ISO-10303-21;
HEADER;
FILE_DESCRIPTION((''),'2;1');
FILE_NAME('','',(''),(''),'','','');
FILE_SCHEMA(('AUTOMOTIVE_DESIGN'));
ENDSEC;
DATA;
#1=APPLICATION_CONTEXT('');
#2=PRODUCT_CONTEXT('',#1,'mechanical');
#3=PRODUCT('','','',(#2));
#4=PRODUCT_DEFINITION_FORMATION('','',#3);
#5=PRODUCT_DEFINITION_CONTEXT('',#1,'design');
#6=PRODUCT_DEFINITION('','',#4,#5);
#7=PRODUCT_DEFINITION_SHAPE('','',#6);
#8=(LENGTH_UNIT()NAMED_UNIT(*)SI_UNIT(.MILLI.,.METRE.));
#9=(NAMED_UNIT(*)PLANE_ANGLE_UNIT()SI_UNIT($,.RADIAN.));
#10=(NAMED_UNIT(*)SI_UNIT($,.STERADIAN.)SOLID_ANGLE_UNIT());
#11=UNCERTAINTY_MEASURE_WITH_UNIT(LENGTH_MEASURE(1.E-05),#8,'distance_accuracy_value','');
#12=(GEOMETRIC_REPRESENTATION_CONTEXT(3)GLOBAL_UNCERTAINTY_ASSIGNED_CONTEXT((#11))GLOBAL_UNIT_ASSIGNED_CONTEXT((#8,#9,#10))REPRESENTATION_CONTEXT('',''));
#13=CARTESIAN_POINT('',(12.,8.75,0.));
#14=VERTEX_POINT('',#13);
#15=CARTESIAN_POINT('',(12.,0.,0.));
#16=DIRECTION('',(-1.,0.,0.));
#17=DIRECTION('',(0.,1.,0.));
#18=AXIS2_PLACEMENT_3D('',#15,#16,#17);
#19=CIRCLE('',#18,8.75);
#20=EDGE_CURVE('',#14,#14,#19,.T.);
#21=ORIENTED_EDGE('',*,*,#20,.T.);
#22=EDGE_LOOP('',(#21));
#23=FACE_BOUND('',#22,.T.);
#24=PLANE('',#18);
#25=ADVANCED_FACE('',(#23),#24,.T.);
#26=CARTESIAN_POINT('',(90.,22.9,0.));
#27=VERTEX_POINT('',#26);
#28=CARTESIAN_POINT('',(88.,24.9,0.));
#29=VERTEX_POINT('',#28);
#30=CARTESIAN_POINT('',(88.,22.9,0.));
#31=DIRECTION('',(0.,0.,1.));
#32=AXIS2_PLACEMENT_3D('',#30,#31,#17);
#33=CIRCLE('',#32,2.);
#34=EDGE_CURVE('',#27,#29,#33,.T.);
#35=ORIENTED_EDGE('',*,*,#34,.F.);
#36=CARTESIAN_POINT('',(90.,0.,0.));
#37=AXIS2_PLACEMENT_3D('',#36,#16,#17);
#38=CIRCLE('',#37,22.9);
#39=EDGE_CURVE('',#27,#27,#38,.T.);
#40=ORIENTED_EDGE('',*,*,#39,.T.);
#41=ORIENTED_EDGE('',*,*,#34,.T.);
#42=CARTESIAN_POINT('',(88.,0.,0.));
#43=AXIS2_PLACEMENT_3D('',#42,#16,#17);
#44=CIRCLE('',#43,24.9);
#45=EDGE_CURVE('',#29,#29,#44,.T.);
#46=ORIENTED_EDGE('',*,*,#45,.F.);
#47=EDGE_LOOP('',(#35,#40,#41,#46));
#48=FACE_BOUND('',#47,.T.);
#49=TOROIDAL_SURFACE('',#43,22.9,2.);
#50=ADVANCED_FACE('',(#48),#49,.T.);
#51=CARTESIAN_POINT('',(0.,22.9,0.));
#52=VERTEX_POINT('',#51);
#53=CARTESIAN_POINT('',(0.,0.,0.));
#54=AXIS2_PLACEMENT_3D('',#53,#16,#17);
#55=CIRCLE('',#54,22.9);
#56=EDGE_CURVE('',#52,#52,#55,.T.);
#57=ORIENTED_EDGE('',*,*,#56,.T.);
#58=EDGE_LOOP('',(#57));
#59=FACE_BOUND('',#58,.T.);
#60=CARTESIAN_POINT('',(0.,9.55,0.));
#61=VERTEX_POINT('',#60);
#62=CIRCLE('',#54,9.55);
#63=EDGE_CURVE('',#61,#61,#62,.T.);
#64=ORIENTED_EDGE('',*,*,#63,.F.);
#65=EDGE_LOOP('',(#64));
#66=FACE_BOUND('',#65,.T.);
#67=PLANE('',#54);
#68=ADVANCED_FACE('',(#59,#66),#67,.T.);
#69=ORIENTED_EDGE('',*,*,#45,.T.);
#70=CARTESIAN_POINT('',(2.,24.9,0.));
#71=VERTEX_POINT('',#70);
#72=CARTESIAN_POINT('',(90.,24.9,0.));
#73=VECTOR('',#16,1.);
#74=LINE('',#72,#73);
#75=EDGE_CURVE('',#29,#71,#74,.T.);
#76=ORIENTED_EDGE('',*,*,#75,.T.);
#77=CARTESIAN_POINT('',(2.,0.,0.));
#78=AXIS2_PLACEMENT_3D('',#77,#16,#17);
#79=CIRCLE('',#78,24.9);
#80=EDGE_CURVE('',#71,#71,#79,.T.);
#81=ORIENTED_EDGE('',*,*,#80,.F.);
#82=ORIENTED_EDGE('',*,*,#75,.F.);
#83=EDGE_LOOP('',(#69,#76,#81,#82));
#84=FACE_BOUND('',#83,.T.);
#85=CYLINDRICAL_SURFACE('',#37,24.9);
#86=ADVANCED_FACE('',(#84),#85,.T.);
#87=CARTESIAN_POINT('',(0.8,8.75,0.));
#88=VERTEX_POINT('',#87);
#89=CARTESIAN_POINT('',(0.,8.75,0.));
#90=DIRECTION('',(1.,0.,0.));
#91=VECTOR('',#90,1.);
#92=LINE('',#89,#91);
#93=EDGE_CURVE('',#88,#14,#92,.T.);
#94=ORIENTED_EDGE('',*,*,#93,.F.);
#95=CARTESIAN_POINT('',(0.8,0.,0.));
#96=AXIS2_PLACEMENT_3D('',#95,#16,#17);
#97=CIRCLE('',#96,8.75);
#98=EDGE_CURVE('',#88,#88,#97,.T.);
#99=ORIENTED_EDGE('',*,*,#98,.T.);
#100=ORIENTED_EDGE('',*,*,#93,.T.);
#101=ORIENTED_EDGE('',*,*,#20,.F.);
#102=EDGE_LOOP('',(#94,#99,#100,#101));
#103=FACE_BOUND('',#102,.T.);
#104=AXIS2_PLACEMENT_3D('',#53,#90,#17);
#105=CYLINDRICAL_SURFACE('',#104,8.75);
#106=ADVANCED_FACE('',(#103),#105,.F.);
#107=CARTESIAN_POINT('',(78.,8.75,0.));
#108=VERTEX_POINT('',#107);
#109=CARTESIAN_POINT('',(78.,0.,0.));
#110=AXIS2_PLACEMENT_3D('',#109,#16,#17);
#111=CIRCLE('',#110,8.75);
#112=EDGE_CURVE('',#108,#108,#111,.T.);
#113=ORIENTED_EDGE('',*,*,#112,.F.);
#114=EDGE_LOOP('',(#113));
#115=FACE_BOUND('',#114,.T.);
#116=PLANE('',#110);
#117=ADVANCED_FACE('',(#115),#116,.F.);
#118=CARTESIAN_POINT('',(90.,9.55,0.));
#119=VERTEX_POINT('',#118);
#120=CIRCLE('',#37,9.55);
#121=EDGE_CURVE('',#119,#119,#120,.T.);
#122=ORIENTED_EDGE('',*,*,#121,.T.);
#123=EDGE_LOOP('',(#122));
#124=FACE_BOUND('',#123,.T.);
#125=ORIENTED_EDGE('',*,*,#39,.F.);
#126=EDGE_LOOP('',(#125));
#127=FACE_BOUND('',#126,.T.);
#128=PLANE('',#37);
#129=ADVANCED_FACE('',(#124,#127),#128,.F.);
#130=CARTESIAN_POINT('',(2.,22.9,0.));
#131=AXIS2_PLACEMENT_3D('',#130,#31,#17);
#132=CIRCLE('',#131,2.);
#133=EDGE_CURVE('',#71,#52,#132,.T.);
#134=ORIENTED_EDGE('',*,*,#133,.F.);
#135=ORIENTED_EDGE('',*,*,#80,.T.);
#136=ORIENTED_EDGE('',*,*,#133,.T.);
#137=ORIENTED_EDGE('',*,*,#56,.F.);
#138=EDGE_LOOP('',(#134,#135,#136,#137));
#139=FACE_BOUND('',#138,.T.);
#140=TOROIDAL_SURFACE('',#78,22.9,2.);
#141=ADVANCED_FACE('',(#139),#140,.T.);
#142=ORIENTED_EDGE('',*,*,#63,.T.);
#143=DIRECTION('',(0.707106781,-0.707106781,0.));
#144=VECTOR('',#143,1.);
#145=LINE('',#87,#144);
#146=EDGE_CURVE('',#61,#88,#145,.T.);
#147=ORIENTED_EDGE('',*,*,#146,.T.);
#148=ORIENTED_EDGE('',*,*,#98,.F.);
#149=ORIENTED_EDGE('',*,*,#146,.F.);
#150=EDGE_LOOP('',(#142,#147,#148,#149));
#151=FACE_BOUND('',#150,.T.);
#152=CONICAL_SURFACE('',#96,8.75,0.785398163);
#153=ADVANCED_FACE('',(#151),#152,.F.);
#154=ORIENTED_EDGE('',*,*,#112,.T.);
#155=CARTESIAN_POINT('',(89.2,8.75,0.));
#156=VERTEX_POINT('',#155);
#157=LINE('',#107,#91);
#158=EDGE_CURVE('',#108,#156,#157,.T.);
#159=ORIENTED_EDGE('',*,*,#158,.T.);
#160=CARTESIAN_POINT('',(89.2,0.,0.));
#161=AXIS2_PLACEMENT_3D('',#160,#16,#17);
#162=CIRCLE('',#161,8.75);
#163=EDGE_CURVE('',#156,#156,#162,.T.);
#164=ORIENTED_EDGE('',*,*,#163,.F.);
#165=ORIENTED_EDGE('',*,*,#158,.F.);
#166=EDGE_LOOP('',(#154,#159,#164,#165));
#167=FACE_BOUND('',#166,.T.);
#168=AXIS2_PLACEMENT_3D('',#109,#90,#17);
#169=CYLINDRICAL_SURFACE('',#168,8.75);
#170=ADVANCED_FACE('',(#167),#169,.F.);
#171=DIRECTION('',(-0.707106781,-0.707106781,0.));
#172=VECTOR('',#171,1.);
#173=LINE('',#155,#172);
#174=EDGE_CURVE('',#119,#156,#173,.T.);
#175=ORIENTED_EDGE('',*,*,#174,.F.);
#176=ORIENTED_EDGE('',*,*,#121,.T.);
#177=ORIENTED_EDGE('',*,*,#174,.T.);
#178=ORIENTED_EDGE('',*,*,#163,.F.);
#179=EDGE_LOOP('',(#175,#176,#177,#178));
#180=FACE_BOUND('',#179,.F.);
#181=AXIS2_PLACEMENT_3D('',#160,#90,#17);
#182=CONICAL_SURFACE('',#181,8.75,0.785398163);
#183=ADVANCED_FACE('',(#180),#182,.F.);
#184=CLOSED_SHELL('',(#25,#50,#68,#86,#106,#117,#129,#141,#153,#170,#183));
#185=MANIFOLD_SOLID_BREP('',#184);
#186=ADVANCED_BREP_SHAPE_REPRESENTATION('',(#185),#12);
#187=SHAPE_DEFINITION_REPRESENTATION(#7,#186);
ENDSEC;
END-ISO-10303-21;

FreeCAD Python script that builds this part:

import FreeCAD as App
import Part
import Sketcher
from FreeCAD import Vector


def edges_at(feature, points):
    """Names of the edges that pass closest to the given points."""
    edges = feature.Shape.Edges
    near = lambda p: min(range(len(edges)), key=lambda i: edges[i].distToShape(Part.Vertex(*p))[0])
    return sorted({f"Edge{near(p) + 1}" for p in points})


def add_polygon(sketch, points):
    """Adds a closed chain of lines whose ends are joined by coincident constraints."""
    first, n = sketch.GeometryCount, len(points)
    for a, b in zip(points, points[1:] + points[:1]):
        sketch.addGeometry(Part.LineSegment(App.Vector(*a, 0), App.Vector(*b, 0)), False)
    for i in range(n):
        sketch.addConstraint(Sketcher.Constraint("Coincident", first + i, 2, first + (i + 1) % n, 1))

doc = App.newDocument("Part")
body = doc.addObject("PartDesign::Body", "Body")

# Sketch on XY plane
sketch1 = body.newObject("Sketcher::SketchObject", "Sketch")
sketch1.AttachmentSupport = (doc.getObject("XY_Plane"), [""])
sketch1.MapMode = "FlatFace"
add_polygon(sketch1, [(12, 9), (12, 0), (78, 0), (78, 9), (90, 9), (90, 25), (0, 25), (0, 9)])  # lines 0-7
sketch1.addConstraint([
    Sketcher.Constraint("Vertical", 0),
    Sketcher.Constraint("Horizontal", 1),
    Sketcher.Constraint("Vertical", 2),
    Sketcher.Constraint("Horizontal", 3),
    Sketcher.Constraint("Vertical", 4),
    Sketcher.Constraint("Horizontal", 5),
    Sketcher.Constraint("Vertical", 6),
    Sketcher.Constraint("Horizontal", 7),
    Sketcher.Constraint("PointOnObject", 0, 2, -1),
    Sketcher.Constraint("PointOnObject", 5, 2, -2),
    Sketcher.Constraint("Horizontal", 3, 2, 6, 2),
    Sketcher.Constraint("Equal", 3, 7),
    Sketcher.Constraint("DistanceX", 1, 1, 1, 2, 66.0),
    Sketcher.Constraint("DistanceX", 3, 1, 3, 2, 12.0),
    Sketcher.Constraint("DistanceY", 0, 2, 0, 1, 8.75),
    Sketcher.Constraint("DistanceY", 4, 1, 4, 2, 16.15),
])
revolution = body.newObject("PartDesign::Revolution", "Revolution")
revolution.Profile = sketch1
revolution.ReferenceAxis = (sketch1, ["H_Axis"])
revolution.Angle = 360
doc.recompute()

fillet = body.newObject("PartDesign::Fillet", "Fillet")
fillet.Base = (revolution, edges_at(revolution, [(0, -24.9, 0), (90, -24.9, 0)]))
fillet.Radius = 2
doc.recompute()

chamfer = body.newObject("PartDesign::Chamfer", "Chamfer")
chamfer.Base = (fillet, edges_at(fillet, [(0, -8.75, 0), (90, -8.75, 0)]))
chamfer.Size = 0.8

doc.recompute()
